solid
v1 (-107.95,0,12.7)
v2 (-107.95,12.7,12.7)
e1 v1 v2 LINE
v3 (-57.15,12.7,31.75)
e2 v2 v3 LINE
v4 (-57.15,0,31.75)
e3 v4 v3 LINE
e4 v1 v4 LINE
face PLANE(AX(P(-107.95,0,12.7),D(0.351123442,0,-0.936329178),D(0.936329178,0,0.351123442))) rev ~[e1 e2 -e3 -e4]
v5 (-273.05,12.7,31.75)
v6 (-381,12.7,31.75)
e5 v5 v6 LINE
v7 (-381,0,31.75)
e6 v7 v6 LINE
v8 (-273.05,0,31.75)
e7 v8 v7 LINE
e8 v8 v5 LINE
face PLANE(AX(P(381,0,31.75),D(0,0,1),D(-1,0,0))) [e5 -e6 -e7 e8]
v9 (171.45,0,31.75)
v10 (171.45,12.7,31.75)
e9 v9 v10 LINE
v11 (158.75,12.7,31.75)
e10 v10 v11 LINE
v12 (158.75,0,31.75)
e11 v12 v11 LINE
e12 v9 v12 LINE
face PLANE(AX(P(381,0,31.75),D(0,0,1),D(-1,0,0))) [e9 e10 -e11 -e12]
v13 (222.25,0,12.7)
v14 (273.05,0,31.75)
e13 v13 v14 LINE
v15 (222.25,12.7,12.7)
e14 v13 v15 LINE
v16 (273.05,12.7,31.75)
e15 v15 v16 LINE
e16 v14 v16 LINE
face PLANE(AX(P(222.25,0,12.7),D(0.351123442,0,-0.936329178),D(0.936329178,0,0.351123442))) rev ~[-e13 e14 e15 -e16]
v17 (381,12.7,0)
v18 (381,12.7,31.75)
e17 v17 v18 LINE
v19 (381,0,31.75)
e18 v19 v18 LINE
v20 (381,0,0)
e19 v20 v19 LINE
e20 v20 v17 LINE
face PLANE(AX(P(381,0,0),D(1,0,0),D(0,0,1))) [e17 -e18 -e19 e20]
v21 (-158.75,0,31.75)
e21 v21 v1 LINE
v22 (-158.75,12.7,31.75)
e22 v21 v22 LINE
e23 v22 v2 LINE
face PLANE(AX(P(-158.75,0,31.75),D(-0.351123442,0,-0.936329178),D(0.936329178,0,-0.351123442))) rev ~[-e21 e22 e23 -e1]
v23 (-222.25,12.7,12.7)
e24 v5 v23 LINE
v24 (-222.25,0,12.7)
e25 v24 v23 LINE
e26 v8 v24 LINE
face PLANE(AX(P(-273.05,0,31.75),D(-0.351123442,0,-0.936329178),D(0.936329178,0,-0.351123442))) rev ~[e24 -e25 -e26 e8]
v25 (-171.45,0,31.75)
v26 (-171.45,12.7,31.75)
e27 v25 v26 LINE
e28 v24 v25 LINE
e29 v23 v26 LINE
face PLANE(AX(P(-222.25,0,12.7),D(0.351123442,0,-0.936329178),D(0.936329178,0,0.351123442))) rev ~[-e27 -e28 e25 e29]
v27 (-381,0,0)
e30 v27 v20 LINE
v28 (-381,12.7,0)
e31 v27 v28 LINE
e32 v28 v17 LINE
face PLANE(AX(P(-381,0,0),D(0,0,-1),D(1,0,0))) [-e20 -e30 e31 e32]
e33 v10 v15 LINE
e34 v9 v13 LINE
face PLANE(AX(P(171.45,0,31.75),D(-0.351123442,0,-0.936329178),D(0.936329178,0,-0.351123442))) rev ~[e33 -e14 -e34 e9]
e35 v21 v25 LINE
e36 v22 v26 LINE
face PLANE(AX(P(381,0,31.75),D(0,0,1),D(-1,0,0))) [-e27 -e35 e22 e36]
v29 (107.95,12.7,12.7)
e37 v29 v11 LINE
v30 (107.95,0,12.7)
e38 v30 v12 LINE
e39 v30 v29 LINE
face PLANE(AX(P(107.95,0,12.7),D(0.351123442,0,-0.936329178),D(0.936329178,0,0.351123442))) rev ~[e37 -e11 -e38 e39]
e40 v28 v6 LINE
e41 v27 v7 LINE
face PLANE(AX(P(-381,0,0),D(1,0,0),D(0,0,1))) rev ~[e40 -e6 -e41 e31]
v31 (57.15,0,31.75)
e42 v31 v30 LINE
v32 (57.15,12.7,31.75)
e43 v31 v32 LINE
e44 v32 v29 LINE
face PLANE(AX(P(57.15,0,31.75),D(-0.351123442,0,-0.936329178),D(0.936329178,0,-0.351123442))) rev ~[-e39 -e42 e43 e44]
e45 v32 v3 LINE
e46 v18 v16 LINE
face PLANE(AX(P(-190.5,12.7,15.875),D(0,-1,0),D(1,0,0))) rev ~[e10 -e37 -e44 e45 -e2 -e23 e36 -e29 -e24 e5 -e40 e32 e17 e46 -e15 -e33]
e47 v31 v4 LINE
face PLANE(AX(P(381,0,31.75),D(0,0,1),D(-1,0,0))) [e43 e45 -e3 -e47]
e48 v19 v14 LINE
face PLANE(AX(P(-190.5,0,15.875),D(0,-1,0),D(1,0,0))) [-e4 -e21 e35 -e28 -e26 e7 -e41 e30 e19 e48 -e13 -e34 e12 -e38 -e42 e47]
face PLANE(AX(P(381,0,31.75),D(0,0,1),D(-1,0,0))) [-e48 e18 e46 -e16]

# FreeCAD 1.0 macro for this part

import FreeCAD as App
import Part
import Sketcher
Q = App.Units.Quantity

doc = App.newDocument("Part")
params = doc.addObject("Spreadsheet::Sheet", "Params")
for row, (alias, value) in enumerate([
    ("sketch1_width", "30 in"),
    ("sketch1_height", "1.25 in"),
    ("pad1_length", "0.5 in"),
    ("sketch2_width", "4 in"),
], start=1):
    params.set(f"A{row}", alias)
    params.set(f"B{row}", "=" + value)
    params.setAlias(f"B{row}", alias)

body = doc.addObject("PartDesign::Body", "Body")

# Sketch on XZ plane
sketch1 = body.newObject("Sketcher::SketchObject", "Sketch")
sketch1.AttachmentSupport = (doc.getObject("XZ_Plane"), [""])
sketch1.MapMode = "FlatFace"
sketch1.addGeometry([
    Part.LineSegment(App.Vector(-381, 31.75, 0), App.Vector(-381, 0, 0)),
    Part.LineSegment(App.Vector(-381, 0, 0), App.Vector(381, 0, 0)),
    Part.LineSegment(App.Vector(381, 0, 0), App.Vector(381, 31.75, 0)),
    Part.LineSegment(App.Vector(381, 31.75, 0), App.Vector(-381, 31.75, 0)),
], False)
sketch1.addConstraint([
    Sketcher.Constraint("Coincident", 0, 2, 1, 1),
    Sketcher.Constraint("Coincident", 1, 2, 2, 1),
    Sketcher.Constraint("Coincident", 2, 2, 3, 1),
    Sketcher.Constraint("Coincident", 3, 2, 0, 1),
    Sketcher.Constraint("Vertical", 0),
    Sketcher.Constraint("Horizontal", 1),
    Sketcher.Constraint("Vertical", 2),
    Sketcher.Constraint("Horizontal", 3),
    Sketcher.Constraint("Symmetric", 0, 2, 1, 2, -1, 1),
    Sketcher.Constraint("DistanceX", 1, 1, 1, 2, Q("30 in")),
    Sketcher.Constraint("DistanceY", 0, 2, 0, 1, Q("1.25 in")),
])
sketch1.setExpression("Constraints[9]", "Params.sketch1_width")
sketch1.setExpression("Constraints[10]", "Params.sketch1_height")
pad1 = body.newObject("PartDesign::Pad", "Pad")
pad1.Profile = sketch1
pad1.setExpression("Length", "Params.pad1_length")
pad1.Reversed = True

# Sketch on XZ plane
sketch2 = body.newObject("Sketcher::SketchObject", "Sketch001")
sketch2.AttachmentSupport = (doc.getObject("XZ_Plane"), [""])
sketch2.MapMode = "FlatFace"
sketch2.addGeometry([
    Part.LineSegment(App.Vector(-107.95, 12.7, 0), App.Vector(-57.15, 31.75, 0)),  # 0
    Part.LineSegment(App.Vector(-57.15, 31.75, 0), App.Vector(-158.75, 31.75, 0)),  # 1
    Part.LineSegment(App.Vector(-158.75, 31.75, 0), App.Vector(-107.95, 12.7, 0)),  # 2
    Part.LineSegment(App.Vector(-273.05, 31.75, 0), App.Vector(-222.25, 12.7, 0)),  # 3
    Part.LineSegment(App.Vector(-222.25, 12.7, 0), App.Vector(-171.45, 31.75, 0)),  # 4
    Part.LineSegment(App.Vector(-171.45, 31.75, 0), App.Vector(-273.05, 31.75, 0)),  # 5
    Part.LineSegment(App.Vector(57.15, 31.75, 0), App.Vector(107.95, 12.7, 0)),  # 6
    Part.LineSegment(App.Vector(107.95, 12.7, 0), App.Vector(158.75, 31.75, 0)),  # 7
    Part.LineSegment(App.Vector(158.75, 31.75, 0), App.Vector(57.15, 31.75, 0)),  # 8
    Part.LineSegment(App.Vector(171.45, 31.75, 0), App.Vector(222.25, 12.7, 0)),  # 9
    Part.LineSegment(App.Vector(222.25, 12.7, 0), App.Vector(273.05, 31.75, 0)),  # 10
    Part.LineSegment(App.Vector(273.05, 31.75, 0), App.Vector(171.45, 31.75, 0)),  # 11
], False)
sketch2.addConstraint([
    Sketcher.Constraint("Coincident", 0, 2, 1, 1),
    Sketcher.Constraint("Coincident", 1, 2, 2, 1),
    Sketcher.Constraint("Coincident", 2, 2, 0, 1),
    Sketcher.Constraint("Coincident", 3, 2, 4, 1),
    Sketcher.Constraint("Coincident", 4, 2, 5, 1),
    Sketcher.Constraint("Coincident", 5, 2, 3, 1),
    Sketcher.Constraint("Coincident", 6, 2, 7, 1),
    Sketcher.Constraint("Coincident", 7, 2, 8, 1),
    Sketcher.Constraint("Coincident", 8, 2, 6, 1),
    Sketcher.Constraint("Coincident", 9, 2, 10, 1),
    Sketcher.Constraint("Coincident", 10, 2, 11, 1),
    Sketcher.Constraint("Coincident", 11, 2, 9, 1),
    Sketcher.Constraint("Horizontal", 1),
    Sketcher.Constraint("Horizontal", 5),
    Sketcher.Constraint("Horizontal", 8),
    Sketcher.Constraint("Horizontal", 11),
    Sketcher.Constraint("Symmetric", 2, 2, 6, 2, -2),
    Sketcher.Constraint("Symmetric", 1, 2, 7, 2, -2),
    Sketcher.Constraint("Symmetric", 3, 2, 9, 2, -2),
    Sketcher.Constraint("Symmetric", 5, 2, 10, 2, -2),
    Sketcher.Constraint("Parallel", 2, 3),
    Sketcher.Constraint("Parallel", 0, 4),
    Sketcher.Constraint("Parallel", 3, 6),
    Sketcher.Constraint("Parallel", 4, 7),
    Sketcher.Constraint("Parallel", 6, 9),
    Sketcher.Constraint("Horizontal", 2, 2, 3, 2),
    Sketcher.Constraint("Horizontal", 1, 2, 4, 2),
    Sketcher.Constraint("DistanceX", 1, 2, 1, 1, Q("4 in")),
    Sketcher.Constraint("DistanceX", 4, 2, 6, 2, Q("11 in")),
    Sketcher.Constraint("DistanceY", -1, 1, 2, 2, Q("0.5 in")),
    Sketcher.Constraint("DistanceX", 3, 2, 1, 2, Q("2.5 in")),
    Sketcher.Constraint("DistanceY", -1, 1, 0, 2, Q("1.25 in")),
])
sketch2.setExpression("Constraints[27]", "Params.sketch2_width")
pocket1 = body.newObject("PartDesign::Pocket", "Pocket")
pocket1.Profile = sketch2
pocket1.Type = "ThroughAll"

doc.recompute()
